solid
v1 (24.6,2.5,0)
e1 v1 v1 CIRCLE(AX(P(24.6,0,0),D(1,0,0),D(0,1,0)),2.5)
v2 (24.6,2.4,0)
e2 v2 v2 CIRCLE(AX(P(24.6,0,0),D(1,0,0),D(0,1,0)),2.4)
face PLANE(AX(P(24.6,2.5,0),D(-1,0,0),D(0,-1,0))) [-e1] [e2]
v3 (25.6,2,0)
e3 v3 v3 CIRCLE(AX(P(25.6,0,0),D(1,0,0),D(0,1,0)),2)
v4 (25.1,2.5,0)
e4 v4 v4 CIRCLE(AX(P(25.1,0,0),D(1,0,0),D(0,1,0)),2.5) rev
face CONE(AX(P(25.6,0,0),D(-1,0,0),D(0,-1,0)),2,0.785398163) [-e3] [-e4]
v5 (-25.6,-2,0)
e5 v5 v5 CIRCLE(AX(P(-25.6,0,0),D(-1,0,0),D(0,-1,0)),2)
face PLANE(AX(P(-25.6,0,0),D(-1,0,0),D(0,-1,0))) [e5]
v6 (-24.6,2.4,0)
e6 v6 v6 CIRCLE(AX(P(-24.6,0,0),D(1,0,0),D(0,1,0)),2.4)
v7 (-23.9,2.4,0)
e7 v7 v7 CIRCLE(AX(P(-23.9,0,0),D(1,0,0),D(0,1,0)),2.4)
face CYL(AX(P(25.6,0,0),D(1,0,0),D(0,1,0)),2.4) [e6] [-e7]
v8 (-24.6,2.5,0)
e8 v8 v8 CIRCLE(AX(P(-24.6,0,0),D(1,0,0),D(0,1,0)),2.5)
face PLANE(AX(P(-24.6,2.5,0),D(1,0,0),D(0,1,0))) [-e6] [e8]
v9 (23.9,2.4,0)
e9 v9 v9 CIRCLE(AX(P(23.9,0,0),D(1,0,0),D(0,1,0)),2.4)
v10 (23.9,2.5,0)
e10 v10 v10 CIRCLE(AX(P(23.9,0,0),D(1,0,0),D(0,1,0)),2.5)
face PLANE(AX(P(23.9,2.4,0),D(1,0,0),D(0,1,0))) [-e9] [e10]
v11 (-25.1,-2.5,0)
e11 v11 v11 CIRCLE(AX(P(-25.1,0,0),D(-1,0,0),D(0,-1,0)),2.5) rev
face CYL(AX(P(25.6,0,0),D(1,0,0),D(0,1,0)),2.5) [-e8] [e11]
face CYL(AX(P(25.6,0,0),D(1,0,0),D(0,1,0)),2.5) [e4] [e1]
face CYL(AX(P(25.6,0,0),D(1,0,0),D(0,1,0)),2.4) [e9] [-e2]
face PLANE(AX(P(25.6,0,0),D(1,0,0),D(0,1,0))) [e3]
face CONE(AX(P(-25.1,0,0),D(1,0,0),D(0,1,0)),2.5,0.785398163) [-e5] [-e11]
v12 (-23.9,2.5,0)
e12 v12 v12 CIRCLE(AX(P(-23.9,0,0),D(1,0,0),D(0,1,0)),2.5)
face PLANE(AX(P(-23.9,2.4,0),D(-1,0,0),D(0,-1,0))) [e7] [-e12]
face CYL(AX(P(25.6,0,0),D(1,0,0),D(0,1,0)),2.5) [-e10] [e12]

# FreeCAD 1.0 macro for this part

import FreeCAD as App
import Part
import Sketcher
Q = App.Units.Quantity


def edges_at(feature, points):
    """Names of the edges that pass closest to the given points."""
    edges = feature.Shape.Edges
    near = lambda p: min(range(len(edges)), key=lambda i: edges[i].distToShape(Part.Vertex(*p))[0])
    return sorted({f"Edge{near(p) + 1}" for p in points})


def add_polygon(sketch, points):
    """Adds a closed chain of lines whose ends are joined by coincident constraints."""
    first, n = sketch.GeometryCount, len(points)
    for a, b in zip(points, points[1:] + points[:1]):
        sketch.addGeometry(Part.LineSegment(App.Vector(*a, 0), App.Vector(*b, 0)), False)
    for i in range(n):
        sketch.addConstraint(Sketcher.Constraint("Coincident", first + i, 2, first + (i + 1) % n, 1))

doc = App.newDocument("Part")
body = doc.addObject("PartDesign::Body", "Body")

# Sketch on XY plane
sketch1 = body.newObject("Sketcher::SketchObject", "Sketch")
sketch1.AttachmentSupport = (doc.getObject("XY_Plane"), [""])
sketch1.MapMode = "FlatFace"
add_polygon(sketch1, [(25.6, 0), (25.6, 2.5), (24.6, 2.5), (24.6, 2.4), (23.9, 2.4), (23.9, 2.5), (-23.9, 2.5), (-23.9, 2.4), (-24.6, 2.4), (-24.6, 2.5), (-25.6, 2.5), (-25.6, 0)])  # lines 0-11
sketch1.addConstraint([
    Sketcher.Constraint("Vertical", 0),
    Sketcher.Constraint("Horizontal", 1),
    Sketcher.Constraint("Vertical", 2),
    Sketcher.Constraint("Horizontal", 3),
    Sketcher.Constraint("Vertical", 4),
    Sketcher.Constraint("Horizontal", 5),
    Sketcher.Constraint("Vertical", 6),
    Sketcher.Constraint("Horizontal", 7),
    Sketcher.Constraint("Vertical", 8),
    Sketcher.Constraint("Horizontal", 9),
    Sketcher.Constraint("Vertical", 10),
    Sketcher.Constraint("Horizontal", 11),
    Sketcher.Constraint("Symmetric", 10, 2, 11, 2, -1, 1),
    Sketcher.Constraint("Symmetric", 3, 2, 6, 2, -2),
    Sketcher.Constraint("Symmetric", 1, 2, 8, 2, -2),
    Sketcher.Constraint("Horizontal", 1, 2, 4, 2),
    Sketcher.Constraint("DistanceX", 1, 2, 1, 1, Q("1 mm")),
    Sketcher.Constraint("DistanceX", 3, 2, 3, 1, Q("0.7 mm")),
    Sketcher.Constraint("DistanceX", 5, 2, 5, 1, Q("47.8 mm")),
    Sketcher.Constraint("DistanceY", 0, 1, 0, 2, Q("2.5 mm")),
    Sketcher.Constraint("DistanceY", 2, 2, 2, 1, Q("0.1 mm")),
])
revolution = body.newObject("PartDesign::Revolution", "Revolution")
revolution.Profile = sketch1
revolution.ReferenceAxis = (sketch1, ["H_Axis"])
revolution.Angle = 360
doc.recompute()

chamfer = body.newObject("PartDesign::Chamfer", "Chamfer")
chamfer.Base = (revolution, edges_at(revolution, [(-25.6, -2.5, 0), (25.6, -2.5, 0)]))
chamfer.Size = 0.5

doc.recompute()
